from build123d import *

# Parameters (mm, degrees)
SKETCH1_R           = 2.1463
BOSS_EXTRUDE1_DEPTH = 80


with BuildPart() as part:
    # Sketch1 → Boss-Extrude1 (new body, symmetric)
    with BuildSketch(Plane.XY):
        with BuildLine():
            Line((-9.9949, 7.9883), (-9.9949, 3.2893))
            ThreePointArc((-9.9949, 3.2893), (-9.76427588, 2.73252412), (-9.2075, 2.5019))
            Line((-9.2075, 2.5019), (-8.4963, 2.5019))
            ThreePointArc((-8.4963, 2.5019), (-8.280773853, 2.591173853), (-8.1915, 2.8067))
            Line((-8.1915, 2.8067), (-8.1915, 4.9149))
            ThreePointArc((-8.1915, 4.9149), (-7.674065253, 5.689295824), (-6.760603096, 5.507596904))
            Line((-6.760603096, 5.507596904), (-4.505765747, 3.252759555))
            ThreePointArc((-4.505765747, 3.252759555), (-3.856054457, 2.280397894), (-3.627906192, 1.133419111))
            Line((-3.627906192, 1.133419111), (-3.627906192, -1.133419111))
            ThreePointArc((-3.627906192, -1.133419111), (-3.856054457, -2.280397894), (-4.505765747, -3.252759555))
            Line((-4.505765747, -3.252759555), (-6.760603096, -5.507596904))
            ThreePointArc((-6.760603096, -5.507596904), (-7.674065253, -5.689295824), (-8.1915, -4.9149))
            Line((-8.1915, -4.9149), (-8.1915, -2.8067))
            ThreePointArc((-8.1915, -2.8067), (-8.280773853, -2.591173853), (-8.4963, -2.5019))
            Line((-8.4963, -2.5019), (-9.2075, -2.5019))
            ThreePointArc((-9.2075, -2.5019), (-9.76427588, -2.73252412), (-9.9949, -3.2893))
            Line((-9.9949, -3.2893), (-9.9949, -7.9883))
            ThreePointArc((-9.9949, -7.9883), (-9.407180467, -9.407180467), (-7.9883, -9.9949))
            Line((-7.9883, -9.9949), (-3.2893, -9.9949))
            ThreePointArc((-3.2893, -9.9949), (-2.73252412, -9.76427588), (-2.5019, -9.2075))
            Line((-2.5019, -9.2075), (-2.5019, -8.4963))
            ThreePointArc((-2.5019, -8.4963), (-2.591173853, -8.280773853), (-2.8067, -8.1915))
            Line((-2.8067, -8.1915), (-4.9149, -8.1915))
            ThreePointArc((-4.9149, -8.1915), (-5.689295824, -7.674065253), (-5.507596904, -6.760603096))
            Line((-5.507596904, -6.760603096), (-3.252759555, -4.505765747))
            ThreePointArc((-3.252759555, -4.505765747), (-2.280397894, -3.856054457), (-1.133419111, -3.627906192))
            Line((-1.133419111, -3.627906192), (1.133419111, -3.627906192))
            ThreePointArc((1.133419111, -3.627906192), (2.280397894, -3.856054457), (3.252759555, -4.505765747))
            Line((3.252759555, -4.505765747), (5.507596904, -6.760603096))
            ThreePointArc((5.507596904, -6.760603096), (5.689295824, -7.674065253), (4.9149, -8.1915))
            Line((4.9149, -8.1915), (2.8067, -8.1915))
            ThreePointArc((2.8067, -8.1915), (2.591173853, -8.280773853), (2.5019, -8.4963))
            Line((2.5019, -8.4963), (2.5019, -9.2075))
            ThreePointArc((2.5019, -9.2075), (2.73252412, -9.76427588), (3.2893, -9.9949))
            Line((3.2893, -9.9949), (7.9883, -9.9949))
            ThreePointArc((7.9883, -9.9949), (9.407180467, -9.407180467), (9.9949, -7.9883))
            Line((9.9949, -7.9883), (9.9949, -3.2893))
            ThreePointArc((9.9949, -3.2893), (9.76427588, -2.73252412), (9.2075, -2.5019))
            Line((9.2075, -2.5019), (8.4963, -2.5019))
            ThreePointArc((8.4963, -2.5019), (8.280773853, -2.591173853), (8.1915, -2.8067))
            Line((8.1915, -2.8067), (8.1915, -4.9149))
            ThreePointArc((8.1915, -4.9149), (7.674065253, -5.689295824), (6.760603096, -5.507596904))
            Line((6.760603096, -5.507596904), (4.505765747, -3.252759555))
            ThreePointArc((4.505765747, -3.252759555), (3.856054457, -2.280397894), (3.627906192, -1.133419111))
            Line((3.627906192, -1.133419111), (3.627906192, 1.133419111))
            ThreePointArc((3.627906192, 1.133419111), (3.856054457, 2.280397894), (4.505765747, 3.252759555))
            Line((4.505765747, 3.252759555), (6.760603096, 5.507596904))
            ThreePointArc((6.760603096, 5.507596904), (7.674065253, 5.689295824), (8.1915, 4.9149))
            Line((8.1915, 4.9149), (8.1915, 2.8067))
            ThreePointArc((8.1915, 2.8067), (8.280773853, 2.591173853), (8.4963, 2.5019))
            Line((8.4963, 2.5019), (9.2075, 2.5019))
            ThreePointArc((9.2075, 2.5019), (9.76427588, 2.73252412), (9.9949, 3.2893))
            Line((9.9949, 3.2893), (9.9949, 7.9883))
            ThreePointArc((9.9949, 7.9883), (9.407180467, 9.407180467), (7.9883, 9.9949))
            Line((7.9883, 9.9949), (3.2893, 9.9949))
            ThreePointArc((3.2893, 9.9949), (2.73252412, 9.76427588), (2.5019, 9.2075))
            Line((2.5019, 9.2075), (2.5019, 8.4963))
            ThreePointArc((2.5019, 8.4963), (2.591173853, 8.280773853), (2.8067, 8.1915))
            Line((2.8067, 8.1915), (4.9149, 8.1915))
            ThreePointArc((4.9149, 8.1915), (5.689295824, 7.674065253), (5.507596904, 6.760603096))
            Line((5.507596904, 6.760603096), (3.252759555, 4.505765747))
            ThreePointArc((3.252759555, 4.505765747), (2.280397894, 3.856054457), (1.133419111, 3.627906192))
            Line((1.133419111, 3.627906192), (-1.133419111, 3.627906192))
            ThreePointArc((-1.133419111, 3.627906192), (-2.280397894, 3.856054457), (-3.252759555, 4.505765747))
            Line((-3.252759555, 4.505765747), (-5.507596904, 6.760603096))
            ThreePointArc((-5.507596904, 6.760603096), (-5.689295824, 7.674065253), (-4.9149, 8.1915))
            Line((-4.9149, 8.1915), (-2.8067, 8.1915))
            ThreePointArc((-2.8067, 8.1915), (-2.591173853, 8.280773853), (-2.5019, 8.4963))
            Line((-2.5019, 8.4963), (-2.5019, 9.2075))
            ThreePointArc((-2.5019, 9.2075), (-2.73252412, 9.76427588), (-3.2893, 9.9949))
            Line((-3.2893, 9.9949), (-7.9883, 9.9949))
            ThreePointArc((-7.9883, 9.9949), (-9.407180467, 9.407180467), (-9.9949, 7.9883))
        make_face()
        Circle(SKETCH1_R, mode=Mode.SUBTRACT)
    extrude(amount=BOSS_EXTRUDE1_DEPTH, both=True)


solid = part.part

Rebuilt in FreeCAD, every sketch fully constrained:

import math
import FreeCAD as App
import Part
import Sketcher
Q = App.Units.Quantity

doc = App.newDocument("Part")
body = doc.addObject("PartDesign::Body", "Body")

# Sketch on XY plane
sketch1 = body.newObject("Sketcher::SketchObject", "Sketch")
sketch1.AttachmentSupport = (doc.getObject("XY_Plane"), [""])
sketch1.MapMode = "FlatFace"
sketch1.addGeometry([
    Part.LineSegment(App.Vector(-9.99, 7.99, 0), App.Vector(-9.99, 3.29, 0)),  # 0
    Part.ArcOfCircle(Part.Circle(App.Vector(-9.21, 3.29, 0), App.Vector(0, 0, 1), 0.79), math.radians(180), math.radians(270)),  # 1
    Part.LineSegment(App.Vector(-9.21, 2.5, 0), App.Vector(-8.5, 2.5, 0)),  # 2
    Part.ArcOfCircle(Part.Circle(App.Vector(-8.5, 2.81, 0), App.Vector(0, 0, 1), 0.3), math.radians(-90), math.radians(0)),  # 3
    Part.LineSegment(App.Vector(-8.19, 2.81, 0), App.Vector(-8.19, 4.91, 0)),  # 4
    Part.ArcOfCircle(Part.Circle(App.Vector(-7.35, 4.91, 0), App.Vector(0, 0, 1), 0.84), math.radians(45), math.radians(180)),  # 5
    Part.LineSegment(App.Vector(-6.76, 5.51, 0), App.Vector(-4.51, 3.25, 0)),  # 6
    Part.ArcOfCircle(Part.Circle(App.Vector(-6.63, 1.13, 0), App.Vector(0, 0, 1), 3), math.radians(0), math.radians(45)),  # 7
    Part.LineSegment(App.Vector(-3.63, 1.13, 0), App.Vector(-3.63, -1.13, 0)),  # 8
    Part.ArcOfCircle(Part.Circle(App.Vector(-6.63, -1.13, 0), App.Vector(0, 0, 1), 3), math.radians(-45), math.radians(0)),  # 9
    Part.LineSegment(App.Vector(-4.51, -3.25, 0), App.Vector(-6.76, -5.51, 0)),  # 10
    Part.ArcOfCircle(Part.Circle(App.Vector(-7.35, -4.91, 0), App.Vector(0, 0, 1), 0.84), math.radians(180), math.radians(315)),  # 11
    Part.LineSegment(App.Vector(-8.19, -4.91, 0), App.Vector(-8.19, -2.81, 0)),  # 12
    Part.ArcOfCircle(Part.Circle(App.Vector(-8.5, -2.81, 0), App.Vector(0, 0, 1), 0.3), math.radians(0), math.radians(90)),  # 13
    Part.LineSegment(App.Vector(-8.5, -2.5, 0), App.Vector(-9.21, -2.5, 0)),  # 14
    Part.ArcOfCircle(Part.Circle(App.Vector(-9.21, -3.29, 0), App.Vector(0, 0, 1), 0.79), math.radians(90), math.radians(180)),  # 15
    Part.LineSegment(App.Vector(-9.99, -3.29, 0), App.Vector(-9.99, -7.99, 0)),  # 16
    Part.ArcOfCircle(Part.Circle(App.Vector(-7.99, -7.99, 0), App.Vector(0, 0, 1), 2.01), math.radians(180), math.radians(270)),  # 17
    Part.LineSegment(App.Vector(-7.99, -9.99, 0), App.Vector(-3.29, -9.99, 0)),  # 18
    Part.ArcOfCircle(Part.Circle(App.Vector(-3.29, -9.21, 0), App.Vector(0, 0, 1), 0.79), math.radians(-90), math.radians(0)),  # 19
    Part.LineSegment(App.Vector(-2.5, -9.21, 0), App.Vector(-2.5, -8.5, 0)),  # 20
    Part.ArcOfCircle(Part.Circle(App.Vector(-2.81, -8.5, 0), App.Vector(0, 0, 1), 0.3), math.radians(0), math.radians(90)),  # 21
    Part.LineSegment(App.Vector(-2.81, -8.19, 0), App.Vector(-4.91, -8.19, 0)),  # 22
    Part.ArcOfCircle(Part.Circle(App.Vector(-4.91, -7.35, 0), App.Vector(0, 0, 1), 0.84), math.radians(135), math.radians(270)),  # 23
    Part.LineSegment(App.Vector(-5.51, -6.76, 0), App.Vector(-3.25, -4.51, 0)),  # 24
    Part.ArcOfCircle(Part.Circle(App.Vector(-1.13, -6.63, 0), App.Vector(0, 0, 1), 3), math.radians(90), math.radians(135)),  # 25
    Part.LineSegment(App.Vector(-1.13, -3.63, 0), App.Vector(1.13, -3.63, 0)),  # 26
    Part.ArcOfCircle(Part.Circle(App.Vector(1.13, -6.63, 0), App.Vector(0, 0, 1), 3), math.radians(45), math.radians(90)),  # 27
    Part.LineSegment(App.Vector(3.25, -4.51, 0), App.Vector(5.51, -6.76, 0)),  # 28
    Part.ArcOfCircle(Part.Circle(App.Vector(4.91, -7.35, 0), App.Vector(0, 0, 1), 0.84), math.radians(-90), math.radians(45)),  # 29
    Part.LineSegment(App.Vector(4.91, -8.19, 0), App.Vector(2.81, -8.19, 0)),  # 30
    Part.ArcOfCircle(Part.Circle(App.Vector(2.81, -8.5, 0), App.Vector(0, 0, 1), 0.3), math.radians(90), math.radians(180)),  # 31
    Part.LineSegment(App.Vector(2.5, -8.5, 0), App.Vector(2.5, -9.21, 0)),  # 32
    Part.ArcOfCircle(Part.Circle(App.Vector(3.29, -9.21, 0), App.Vector(0, 0, 1), 0.79), math.radians(180), math.radians(270)),  # 33
    Part.LineSegment(App.Vector(3.29, -9.99, 0), App.Vector(7.99, -9.99, 0)),  # 34
    Part.ArcOfCircle(Part.Circle(App.Vector(7.99, -7.99, 0), App.Vector(0, 0, 1), 2.01), math.radians(-90), math.radians(0)),  # 35
    Part.LineSegment(App.Vector(9.99, -7.99, 0), App.Vector(9.99, -3.29, 0)),  # 36
    Part.ArcOfCircle(Part.Circle(App.Vector(9.21, -3.29, 0), App.Vector(0, 0, 1), 0.79), math.radians(0), math.radians(90)),  # 37
    Part.LineSegment(App.Vector(9.21, -2.5, 0), App.Vector(8.5, -2.5, 0)),  # 38
    Part.ArcOfCircle(Part.Circle(App.Vector(8.5, -2.81, 0), App.Vector(0, 0, 1), 0.3), math.radians(90), math.radians(180)),  # 39
    Part.LineSegment(App.Vector(8.19, -2.81, 0), App.Vector(8.19, -4.91, 0)),  # 40
    Part.ArcOfCircle(Part.Circle(App.Vector(7.35, -4.91, 0), App.Vector(0, 0, 1), 0.84), math.radians(-135), math.radians(0)),  # 41
    Part.LineSegment(App.Vector(6.76, -5.51, 0), App.Vector(4.51, -3.25, 0)),  # 42
    Part.ArcOfCircle(Part.Circle(App.Vector(6.63, -1.13, 0), App.Vector(0, 0, 1), 3), math.radians(180), math.radians(225)),  # 43
    Part.LineSegment(App.Vector(3.63, -1.13, 0), App.Vector(3.63, 1.13, 0)),  # 44
    Part.ArcOfCircle(Part.Circle(App.Vector(6.63, 1.13, 0), App.Vector(0, 0, 1), 3), math.radians(135), math.radians(180)),  # 45
    Part.LineSegment(App.Vector(4.51, 3.25, 0), App.Vector(6.76, 5.51, 0)),  # 46
    Part.ArcOfCircle(Part.Circle(App.Vector(7.35, 4.91, 0), App.Vector(0, 0, 1), 0.84), math.radians(0), math.radians(135)),  # 47
    Part.LineSegment(App.Vector(8.19, 4.91, 0), App.Vector(8.19, 2.81, 0)),  # 48
    Part.ArcOfCircle(Part.Circle(App.Vector(8.5, 2.81, 0), App.Vector(0, 0, 1), 0.3), math.radians(180), math.radians(270)),  # 49
    Part.LineSegment(App.Vector(8.5, 2.5, 0), App.Vector(9.21, 2.5, 0)),  # 50
    Part.ArcOfCircle(Part.Circle(App.Vector(9.21, 3.29, 0), App.Vector(0, 0, 1), 0.79), math.radians(-90), math.radians(0)),  # 51
    Part.LineSegment(App.Vector(9.99, 3.29, 0), App.Vector(9.99, 7.99, 0)),  # 52
    Part.ArcOfCircle(Part.Circle(App.Vector(7.99, 7.99, 0), App.Vector(0, 0, 1), 2.01), math.radians(0), math.radians(90)),  # 53
    Part.LineSegment(App.Vector(7.99, 9.99, 0), App.Vector(3.29, 9.99, 0)),  # 54
    Part.ArcOfCircle(Part.Circle(App.Vector(3.29, 9.21, 0), App.Vector(0, 0, 1), 0.79), math.radians(90), math.radians(180)),  # 55
    Part.LineSegment(App.Vector(2.5, 9.21, 0), App.Vector(2.5, 8.5, 0)),  # 56
    Part.ArcOfCircle(Part.Circle(App.Vector(2.81, 8.5, 0), App.Vector(0, 0, 1), 0.3), math.radians(180), math.radians(270)),  # 57
    Part.LineSegment(App.Vector(2.81, 8.19, 0), App.Vector(4.91, 8.19, 0)),  # 58
    Part.ArcOfCircle(Part.Circle(App.Vector(4.91, 7.35, 0), App.Vector(0, 0, 1), 0.84), math.radians(-45), math.radians(90)),  # 59
    Part.LineSegment(App.Vector(5.51, 6.76, 0), App.Vector(3.25, 4.51, 0)),  # 60
    Part.ArcOfCircle(Part.Circle(App.Vector(1.13, 6.63, 0), App.Vector(0, 0, 1), 3), math.radians(-90), math.radians(-45)),  # 61
    Part.LineSegment(App.Vector(1.13, 3.63, 0), App.Vector(-1.13, 3.63, 0)),  # 62
    Part.ArcOfCircle(Part.Circle(App.Vector(-1.13, 6.63, 0), App.Vector(0, 0, 1), 3), math.radians(-135), math.radians(-90)),  # 63
    Part.LineSegment(App.Vector(-3.25, 4.51, 0), App.Vector(-5.51, 6.76, 0)),  # 64
    Part.ArcOfCircle(Part.Circle(App.Vector(-4.91, 7.35, 0), App.Vector(0, 0, 1), 0.84), math.radians(90), math.radians(225)),  # 65
    Part.LineSegment(App.Vector(-4.91, 8.19, 0), App.Vector(-2.81, 8.19, 0)),  # 66
    Part.ArcOfCircle(Part.Circle(App.Vector(-2.81, 8.5, 0), App.Vector(0, 0, 1), 0.3), math.radians(-90), math.radians(0)),  # 67
    Part.LineSegment(App.Vector(-2.5, 8.5, 0), App.Vector(-2.5, 9.21, 0)),  # 68
    Part.ArcOfCircle(Part.Circle(App.Vector(-3.29, 9.21, 0), App.Vector(0, 0, 1), 0.79), math.radians(0), math.radians(90)),  # 69
    Part.LineSegment(App.Vector(-3.29, 9.99, 0), App.Vector(-7.99, 9.99, 0)),  # 70
    Part.ArcOfCircle(Part.Circle(App.Vector(-7.99, 7.99, 0), App.Vector(0, 0, 1), 2.01), math.radians(90), math.radians(180)),  # 71
    Part.Circle(App.Vector(0, 0, 0), App.Vector(0, 0, 1), 2.15),  # 72
], False)
sketch1.addConstraint([
    Sketcher.Constraint("Tangent", 0, 2, 1, 1),
    Sketcher.Constraint("Tangent", 1, 2, 2, 1),
    Sketcher.Constraint("Tangent", 2, 2, 3, 1),
    Sketcher.Constraint("Tangent", 3, 2, 4, 1),
    Sketcher.Constraint("Tangent", 4, 2, 5, 2),
    Sketcher.Constraint("Tangent", 5, 1, 6, 1),
    Sketcher.Constraint("Tangent", 6, 2, 7, 2),
    Sketcher.Constraint("Tangent", 7, 1, 8, 1),
    Sketcher.Constraint("Tangent", 8, 2, 9, 2),
    Sketcher.Constraint("Tangent", 9, 1, 10, 1),
    Sketcher.Constraint("Tangent", 10, 2, 11, 2),
    Sketcher.Constraint("Tangent", 11, 1, 12, 1),
    Sketcher.Constraint("Tangent", 12, 2, 13, 1),
    Sketcher.Constraint("Tangent", 13, 2, 14, 1),
    Sketcher.Constraint("Tangent", 14, 2, 15, 1),
    Sketcher.Constraint("Tangent", 15, 2, 16, 1),
    Sketcher.Constraint("Tangent", 16, 2, 17, 1),
    Sketcher.Constraint("Tangent", 17, 2, 18, 1),
    Sketcher.Constraint("Tangent", 18, 2, 19, 1),
    Sketcher.Constraint("Tangent", 19, 2, 20, 1),
    Sketcher.Constraint("Tangent", 20, 2, 21, 1),
    Sketcher.Constraint("Tangent", 21, 2, 22, 1),
    Sketcher.Constraint("Tangent", 22, 2, 23, 2),
    Sketcher.Constraint("Tangent", 23, 1, 24, 1),
    Sketcher.Constraint("Tangent", 24, 2, 25, 2),
    Sketcher.Constraint("Tangent", 25, 1, 26, 1),
    Sketcher.Constraint("Tangent", 26, 2, 27, 2),
    Sketcher.Constraint("Tangent", 27, 1, 28, 1),
    Sketcher.Constraint("Tangent", 28, 2, 29, 2),
    Sketcher.Constraint("Tangent", 29, 1, 30, 1),
    Sketcher.Constraint("Tangent", 30, 2, 31, 1),
    Sketcher.Constraint("Tangent", 31, 2, 32, 1),
    Sketcher.Constraint("Tangent", 32, 2, 33, 1),
    Sketcher.Constraint("Tangent", 33, 2, 34, 1),
    Sketcher.Constraint("Tangent", 34, 2, 35, 1),
    Sketcher.Constraint("Tangent", 35, 2, 36, 1),
    Sketcher.Constraint("Tangent", 36, 2, 37, 1),
    Sketcher.Constraint("Tangent", 37, 2, 38, 1),
    Sketcher.Constraint("Tangent", 38, 2, 39, 1),
    Sketcher.Constraint("Tangent", 39, 2, 40, 1),
    Sketcher.Constraint("Tangent", 40, 2, 41, 2),
    Sketcher.Constraint("Tangent", 41, 1, 42, 1),
    Sketcher.Constraint("Tangent", 42, 2, 43, 2),
    Sketcher.Constraint("Tangent", 43, 1, 44, 1),
    Sketcher.Constraint("Tangent", 44, 2, 45, 2),
    Sketcher.Constraint("Tangent", 45, 1, 46, 1),
    Sketcher.Constraint("Tangent", 46, 2, 47, 2),
    Sketcher.Constraint("Tangent", 47, 1, 48, 1),
    Sketcher.Constraint("Tangent", 48, 2, 49, 1),
    Sketcher.Constraint("Tangent", 49, 2, 50, 1),
    Sketcher.Constraint("Tangent", 50, 2, 51, 1),
    Sketcher.Constraint("Tangent", 51, 2, 52, 1),
    Sketcher.Constraint("Tangent", 52, 2, 53, 1),
    Sketcher.Constraint("Tangent", 53, 2, 54, 1),
    Sketcher.Constraint("Tangent", 54, 2, 55, 1),
    Sketcher.Constraint("Tangent", 55, 2, 56, 1),
    Sketcher.Constraint("Tangent", 56, 2, 57, 1),
    Sketcher.Constraint("Tangent", 57, 2, 58, 1),
    Sketcher.Constraint("Tangent", 58, 2, 59, 2),
    Sketcher.Constraint("Tangent", 59, 1, 60, 1),
    Sketcher.Constraint("Tangent", 60, 2, 61, 2),
    Sketcher.Constraint("Tangent", 61, 1, 62, 1),
    Sketcher.Constraint("Tangent", 62, 2, 63, 2),
    Sketcher.Constraint("Tangent", 63, 1, 64, 1),
    Sketcher.Constraint("Tangent", 64, 2, 65, 2),
    Sketcher.Constraint("Tangent", 65, 1, 66, 1),
    Sketcher.Constraint("Tangent", 66, 2, 67, 1),
    Sketcher.Constraint("Tangent", 67, 2, 68, 1),
    Sketcher.Constraint("Tangent", 68, 2, 69, 1),
    Sketcher.Constraint("Tangent", 69, 2, 70, 1),
    Sketcher.Constraint("Tangent", 70, 2, 71, 1),
    Sketcher.Constraint("Tangent", 71, 2, 0, 1),
    Sketcher.Constraint("Vertical", 0),
    Sketcher.Constraint("Horizontal", 2),
    Sketcher.Constraint("Vertical", 4),
    Sketcher.Constraint("Vertical", 8),
    Sketcher.Constraint("Vertical", 12),
    Sketcher.Constraint("Horizontal", 14),
    Sketcher.Constraint("Vertical", 16),
    Sketcher.Constraint("Horizontal", 18),
    Sketcher.Constraint("Vertical", 20),
    Sketcher.Constraint("Horizontal", 22),
    Sketcher.Constraint("Horizontal", 26),
    Sketcher.Constraint("Horizontal", 30),
    Sketcher.Constraint("Vertical", 32),
    Sketcher.Constraint("Horizontal", 34),
    Sketcher.Constraint("Vertical", 36),
    Sketcher.Constraint("Horizontal", 38),
    Sketcher.Constraint("Vertical", 40),
    Sketcher.Constraint("Vertical", 44),
    Sketcher.Constraint("Vertical", 48),
    Sketcher.Constraint("Horizontal", 50),
    Sketcher.Constraint("Vertical", 52),
    Sketcher.Constraint("Horizontal", 54),
    Sketcher.Constraint("Vertical", 56),
    Sketcher.Constraint("Horizontal", 58),
    Sketcher.Constraint("Horizontal", 62),
    Sketcher.Constraint("Horizontal", 66),
    Sketcher.Constraint("Vertical", 68),
    Sketcher.Constraint("Horizontal", 70),
    Sketcher.Constraint("Coincident", 72, 3, -1, 1),
    Sketcher.Constraint("Equal", 7, 9),
    Sketcher.Constraint("Equal", 5, 11),
    Sketcher.Constraint("Equal", 3, 13),
    Sketcher.Constraint("Equal", 1, 15),
    Sketcher.Constraint("Equal", 15, 19),
    Sketcher.Constraint("Equal", 13, 21),
    Sketcher.Constraint("Equal", 11, 23),
    Sketcher.Constraint("Equal", 9, 25),
    Sketcher.Constraint("Equal", 25, 27),
    Sketcher.Constraint("Equal", 23, 29),
    Sketcher.Constraint("Equal", 21, 31),
    Sketcher.Constraint("Equal", 19, 33),
    Sketcher.Constraint("Equal", 17, 35),
    Sketcher.Constraint("Equal", 33, 37),
    Sketcher.Constraint("Equal", 31, 39),
    Sketcher.Constraint("Equal", 29, 41),
    Sketcher.Constraint("Equal", 27, 43),
    Sketcher.Constraint("Equal", 43, 45),
    Sketcher.Constraint("Equal", 41, 47),
    Sketcher.Constraint("Equal", 39, 49),
    Sketcher.Constraint("Equal", 37, 51),
    Sketcher.Constraint("Equal", 35, 53),
    Sketcher.Constraint("Equal", 51, 55),
    Sketcher.Constraint("Equal", 49, 57),
    Sketcher.Constraint("Equal", 47, 59),
    Sketcher.Constraint("Equal", 45, 61),
    Sketcher.Constraint("Equal", 61, 63),
    Sketcher.Constraint("Equal", 59, 65),
    Sketcher.Constraint("Equal", 57, 67),
    Sketcher.Constraint("Equal", 55, 69),
    Sketcher.Constraint("Equal", 53, 71),
    Sketcher.Constraint("Symmetric", 1, 3, 37, 3, -1, 1),
    Sketcher.Constraint("Symmetric", 5, 3, 41, 3, -1, 1),
    Sketcher.Constraint("Symmetric", 7, 3, 43, 3, -1, 1),
    Sketcher.Constraint("Symmetric", 11, 3, 47, 3, -1, 1),
    Sketcher.Constraint("Symmetric", 15, 3, 51, 3, -1, 1),
    Sketcher.Constraint("Symmetric", 19, 3, 55, 3, -1, 1),
    Sketcher.Constraint("Symmetric", 23, 3, 59, 3, -1, 1),
    Sketcher.Constraint("Symmetric", 25, 3, 61, 3, -1, 1),
    Sketcher.Constraint("Symmetric", 29, 3, 65, 3, -1, 1),
    Sketcher.Constraint("Symmetric", 33, 3, 69, 3, -1, 1),
    Sketcher.Constraint("Symmetric", 23, 3, 29, 3, -2),
    Sketcher.Constraint("Symmetric", 19, 3, 33, 3, -2),
    Sketcher.Constraint("Symmetric", 15, 3, 37, 3, -2),
    Sketcher.Constraint("Symmetric", 11, 3, 41, 3, -2),
    Sketcher.Constraint("Perpendicular", 6, 10),
    Sketcher.Constraint("Parallel", 10, 24),
    Sketcher.Constraint("Perpendicular", 24, 28),
    Sketcher.Constraint("Perpendicular", 42, 46),
    Sketcher.Constraint("Perpendicular", 60, 64),
    Sketcher.Constraint("Horizontal", 9, 3, 43, 3),
    Sketcher.Constraint("Equal", 70, 0),
    Sketcher.Constraint("Equal", 66, 4),
    Sketcher.Constraint("Equal", 62, 8),
    Sketcher.Constraint("Equal", 50, 20),
    Sketcher.Constraint("Equal", 10, 24),
    Sketcher.Constraint("Diameter", 72, Q("0.169 in")),
    Sketcher.Constraint("Radius", 1, Q("0.031 in")),
    Sketcher.Constraint("Radius", 3, Q("0.012 in")),
    Sketcher.Constraint("Radius", 5, Q("0.033 in")),
    Sketcher.Constraint("Radius", 7, Q("0.118 in")),
    Sketcher.Constraint("Radius", 17, Q("0.079 in")),
    Sketcher.Constraint("DistanceX", 2, 1, 2, 2, Q("0.028 in")),
    Sketcher.Constraint("DistanceX", 18, 1, 18, 2, Q("0.185 in")),
    Sketcher.Constraint("DistanceX", 22, 2, 22, 1, Q("0.083 in")),
    Sketcher.Constraint("DistanceX", 1, 3, -1, 1, Q("0.3625 in")),
    Sketcher.Constraint("DistanceX", 26, 1, 26, 2, Q("2.266838 mm")),
])
pad1 = body.newObject("PartDesign::Pad", "Pad")
pad1.Profile = sketch1
pad1.Length = 160
pad1.Midplane = True

doc.recompute()
